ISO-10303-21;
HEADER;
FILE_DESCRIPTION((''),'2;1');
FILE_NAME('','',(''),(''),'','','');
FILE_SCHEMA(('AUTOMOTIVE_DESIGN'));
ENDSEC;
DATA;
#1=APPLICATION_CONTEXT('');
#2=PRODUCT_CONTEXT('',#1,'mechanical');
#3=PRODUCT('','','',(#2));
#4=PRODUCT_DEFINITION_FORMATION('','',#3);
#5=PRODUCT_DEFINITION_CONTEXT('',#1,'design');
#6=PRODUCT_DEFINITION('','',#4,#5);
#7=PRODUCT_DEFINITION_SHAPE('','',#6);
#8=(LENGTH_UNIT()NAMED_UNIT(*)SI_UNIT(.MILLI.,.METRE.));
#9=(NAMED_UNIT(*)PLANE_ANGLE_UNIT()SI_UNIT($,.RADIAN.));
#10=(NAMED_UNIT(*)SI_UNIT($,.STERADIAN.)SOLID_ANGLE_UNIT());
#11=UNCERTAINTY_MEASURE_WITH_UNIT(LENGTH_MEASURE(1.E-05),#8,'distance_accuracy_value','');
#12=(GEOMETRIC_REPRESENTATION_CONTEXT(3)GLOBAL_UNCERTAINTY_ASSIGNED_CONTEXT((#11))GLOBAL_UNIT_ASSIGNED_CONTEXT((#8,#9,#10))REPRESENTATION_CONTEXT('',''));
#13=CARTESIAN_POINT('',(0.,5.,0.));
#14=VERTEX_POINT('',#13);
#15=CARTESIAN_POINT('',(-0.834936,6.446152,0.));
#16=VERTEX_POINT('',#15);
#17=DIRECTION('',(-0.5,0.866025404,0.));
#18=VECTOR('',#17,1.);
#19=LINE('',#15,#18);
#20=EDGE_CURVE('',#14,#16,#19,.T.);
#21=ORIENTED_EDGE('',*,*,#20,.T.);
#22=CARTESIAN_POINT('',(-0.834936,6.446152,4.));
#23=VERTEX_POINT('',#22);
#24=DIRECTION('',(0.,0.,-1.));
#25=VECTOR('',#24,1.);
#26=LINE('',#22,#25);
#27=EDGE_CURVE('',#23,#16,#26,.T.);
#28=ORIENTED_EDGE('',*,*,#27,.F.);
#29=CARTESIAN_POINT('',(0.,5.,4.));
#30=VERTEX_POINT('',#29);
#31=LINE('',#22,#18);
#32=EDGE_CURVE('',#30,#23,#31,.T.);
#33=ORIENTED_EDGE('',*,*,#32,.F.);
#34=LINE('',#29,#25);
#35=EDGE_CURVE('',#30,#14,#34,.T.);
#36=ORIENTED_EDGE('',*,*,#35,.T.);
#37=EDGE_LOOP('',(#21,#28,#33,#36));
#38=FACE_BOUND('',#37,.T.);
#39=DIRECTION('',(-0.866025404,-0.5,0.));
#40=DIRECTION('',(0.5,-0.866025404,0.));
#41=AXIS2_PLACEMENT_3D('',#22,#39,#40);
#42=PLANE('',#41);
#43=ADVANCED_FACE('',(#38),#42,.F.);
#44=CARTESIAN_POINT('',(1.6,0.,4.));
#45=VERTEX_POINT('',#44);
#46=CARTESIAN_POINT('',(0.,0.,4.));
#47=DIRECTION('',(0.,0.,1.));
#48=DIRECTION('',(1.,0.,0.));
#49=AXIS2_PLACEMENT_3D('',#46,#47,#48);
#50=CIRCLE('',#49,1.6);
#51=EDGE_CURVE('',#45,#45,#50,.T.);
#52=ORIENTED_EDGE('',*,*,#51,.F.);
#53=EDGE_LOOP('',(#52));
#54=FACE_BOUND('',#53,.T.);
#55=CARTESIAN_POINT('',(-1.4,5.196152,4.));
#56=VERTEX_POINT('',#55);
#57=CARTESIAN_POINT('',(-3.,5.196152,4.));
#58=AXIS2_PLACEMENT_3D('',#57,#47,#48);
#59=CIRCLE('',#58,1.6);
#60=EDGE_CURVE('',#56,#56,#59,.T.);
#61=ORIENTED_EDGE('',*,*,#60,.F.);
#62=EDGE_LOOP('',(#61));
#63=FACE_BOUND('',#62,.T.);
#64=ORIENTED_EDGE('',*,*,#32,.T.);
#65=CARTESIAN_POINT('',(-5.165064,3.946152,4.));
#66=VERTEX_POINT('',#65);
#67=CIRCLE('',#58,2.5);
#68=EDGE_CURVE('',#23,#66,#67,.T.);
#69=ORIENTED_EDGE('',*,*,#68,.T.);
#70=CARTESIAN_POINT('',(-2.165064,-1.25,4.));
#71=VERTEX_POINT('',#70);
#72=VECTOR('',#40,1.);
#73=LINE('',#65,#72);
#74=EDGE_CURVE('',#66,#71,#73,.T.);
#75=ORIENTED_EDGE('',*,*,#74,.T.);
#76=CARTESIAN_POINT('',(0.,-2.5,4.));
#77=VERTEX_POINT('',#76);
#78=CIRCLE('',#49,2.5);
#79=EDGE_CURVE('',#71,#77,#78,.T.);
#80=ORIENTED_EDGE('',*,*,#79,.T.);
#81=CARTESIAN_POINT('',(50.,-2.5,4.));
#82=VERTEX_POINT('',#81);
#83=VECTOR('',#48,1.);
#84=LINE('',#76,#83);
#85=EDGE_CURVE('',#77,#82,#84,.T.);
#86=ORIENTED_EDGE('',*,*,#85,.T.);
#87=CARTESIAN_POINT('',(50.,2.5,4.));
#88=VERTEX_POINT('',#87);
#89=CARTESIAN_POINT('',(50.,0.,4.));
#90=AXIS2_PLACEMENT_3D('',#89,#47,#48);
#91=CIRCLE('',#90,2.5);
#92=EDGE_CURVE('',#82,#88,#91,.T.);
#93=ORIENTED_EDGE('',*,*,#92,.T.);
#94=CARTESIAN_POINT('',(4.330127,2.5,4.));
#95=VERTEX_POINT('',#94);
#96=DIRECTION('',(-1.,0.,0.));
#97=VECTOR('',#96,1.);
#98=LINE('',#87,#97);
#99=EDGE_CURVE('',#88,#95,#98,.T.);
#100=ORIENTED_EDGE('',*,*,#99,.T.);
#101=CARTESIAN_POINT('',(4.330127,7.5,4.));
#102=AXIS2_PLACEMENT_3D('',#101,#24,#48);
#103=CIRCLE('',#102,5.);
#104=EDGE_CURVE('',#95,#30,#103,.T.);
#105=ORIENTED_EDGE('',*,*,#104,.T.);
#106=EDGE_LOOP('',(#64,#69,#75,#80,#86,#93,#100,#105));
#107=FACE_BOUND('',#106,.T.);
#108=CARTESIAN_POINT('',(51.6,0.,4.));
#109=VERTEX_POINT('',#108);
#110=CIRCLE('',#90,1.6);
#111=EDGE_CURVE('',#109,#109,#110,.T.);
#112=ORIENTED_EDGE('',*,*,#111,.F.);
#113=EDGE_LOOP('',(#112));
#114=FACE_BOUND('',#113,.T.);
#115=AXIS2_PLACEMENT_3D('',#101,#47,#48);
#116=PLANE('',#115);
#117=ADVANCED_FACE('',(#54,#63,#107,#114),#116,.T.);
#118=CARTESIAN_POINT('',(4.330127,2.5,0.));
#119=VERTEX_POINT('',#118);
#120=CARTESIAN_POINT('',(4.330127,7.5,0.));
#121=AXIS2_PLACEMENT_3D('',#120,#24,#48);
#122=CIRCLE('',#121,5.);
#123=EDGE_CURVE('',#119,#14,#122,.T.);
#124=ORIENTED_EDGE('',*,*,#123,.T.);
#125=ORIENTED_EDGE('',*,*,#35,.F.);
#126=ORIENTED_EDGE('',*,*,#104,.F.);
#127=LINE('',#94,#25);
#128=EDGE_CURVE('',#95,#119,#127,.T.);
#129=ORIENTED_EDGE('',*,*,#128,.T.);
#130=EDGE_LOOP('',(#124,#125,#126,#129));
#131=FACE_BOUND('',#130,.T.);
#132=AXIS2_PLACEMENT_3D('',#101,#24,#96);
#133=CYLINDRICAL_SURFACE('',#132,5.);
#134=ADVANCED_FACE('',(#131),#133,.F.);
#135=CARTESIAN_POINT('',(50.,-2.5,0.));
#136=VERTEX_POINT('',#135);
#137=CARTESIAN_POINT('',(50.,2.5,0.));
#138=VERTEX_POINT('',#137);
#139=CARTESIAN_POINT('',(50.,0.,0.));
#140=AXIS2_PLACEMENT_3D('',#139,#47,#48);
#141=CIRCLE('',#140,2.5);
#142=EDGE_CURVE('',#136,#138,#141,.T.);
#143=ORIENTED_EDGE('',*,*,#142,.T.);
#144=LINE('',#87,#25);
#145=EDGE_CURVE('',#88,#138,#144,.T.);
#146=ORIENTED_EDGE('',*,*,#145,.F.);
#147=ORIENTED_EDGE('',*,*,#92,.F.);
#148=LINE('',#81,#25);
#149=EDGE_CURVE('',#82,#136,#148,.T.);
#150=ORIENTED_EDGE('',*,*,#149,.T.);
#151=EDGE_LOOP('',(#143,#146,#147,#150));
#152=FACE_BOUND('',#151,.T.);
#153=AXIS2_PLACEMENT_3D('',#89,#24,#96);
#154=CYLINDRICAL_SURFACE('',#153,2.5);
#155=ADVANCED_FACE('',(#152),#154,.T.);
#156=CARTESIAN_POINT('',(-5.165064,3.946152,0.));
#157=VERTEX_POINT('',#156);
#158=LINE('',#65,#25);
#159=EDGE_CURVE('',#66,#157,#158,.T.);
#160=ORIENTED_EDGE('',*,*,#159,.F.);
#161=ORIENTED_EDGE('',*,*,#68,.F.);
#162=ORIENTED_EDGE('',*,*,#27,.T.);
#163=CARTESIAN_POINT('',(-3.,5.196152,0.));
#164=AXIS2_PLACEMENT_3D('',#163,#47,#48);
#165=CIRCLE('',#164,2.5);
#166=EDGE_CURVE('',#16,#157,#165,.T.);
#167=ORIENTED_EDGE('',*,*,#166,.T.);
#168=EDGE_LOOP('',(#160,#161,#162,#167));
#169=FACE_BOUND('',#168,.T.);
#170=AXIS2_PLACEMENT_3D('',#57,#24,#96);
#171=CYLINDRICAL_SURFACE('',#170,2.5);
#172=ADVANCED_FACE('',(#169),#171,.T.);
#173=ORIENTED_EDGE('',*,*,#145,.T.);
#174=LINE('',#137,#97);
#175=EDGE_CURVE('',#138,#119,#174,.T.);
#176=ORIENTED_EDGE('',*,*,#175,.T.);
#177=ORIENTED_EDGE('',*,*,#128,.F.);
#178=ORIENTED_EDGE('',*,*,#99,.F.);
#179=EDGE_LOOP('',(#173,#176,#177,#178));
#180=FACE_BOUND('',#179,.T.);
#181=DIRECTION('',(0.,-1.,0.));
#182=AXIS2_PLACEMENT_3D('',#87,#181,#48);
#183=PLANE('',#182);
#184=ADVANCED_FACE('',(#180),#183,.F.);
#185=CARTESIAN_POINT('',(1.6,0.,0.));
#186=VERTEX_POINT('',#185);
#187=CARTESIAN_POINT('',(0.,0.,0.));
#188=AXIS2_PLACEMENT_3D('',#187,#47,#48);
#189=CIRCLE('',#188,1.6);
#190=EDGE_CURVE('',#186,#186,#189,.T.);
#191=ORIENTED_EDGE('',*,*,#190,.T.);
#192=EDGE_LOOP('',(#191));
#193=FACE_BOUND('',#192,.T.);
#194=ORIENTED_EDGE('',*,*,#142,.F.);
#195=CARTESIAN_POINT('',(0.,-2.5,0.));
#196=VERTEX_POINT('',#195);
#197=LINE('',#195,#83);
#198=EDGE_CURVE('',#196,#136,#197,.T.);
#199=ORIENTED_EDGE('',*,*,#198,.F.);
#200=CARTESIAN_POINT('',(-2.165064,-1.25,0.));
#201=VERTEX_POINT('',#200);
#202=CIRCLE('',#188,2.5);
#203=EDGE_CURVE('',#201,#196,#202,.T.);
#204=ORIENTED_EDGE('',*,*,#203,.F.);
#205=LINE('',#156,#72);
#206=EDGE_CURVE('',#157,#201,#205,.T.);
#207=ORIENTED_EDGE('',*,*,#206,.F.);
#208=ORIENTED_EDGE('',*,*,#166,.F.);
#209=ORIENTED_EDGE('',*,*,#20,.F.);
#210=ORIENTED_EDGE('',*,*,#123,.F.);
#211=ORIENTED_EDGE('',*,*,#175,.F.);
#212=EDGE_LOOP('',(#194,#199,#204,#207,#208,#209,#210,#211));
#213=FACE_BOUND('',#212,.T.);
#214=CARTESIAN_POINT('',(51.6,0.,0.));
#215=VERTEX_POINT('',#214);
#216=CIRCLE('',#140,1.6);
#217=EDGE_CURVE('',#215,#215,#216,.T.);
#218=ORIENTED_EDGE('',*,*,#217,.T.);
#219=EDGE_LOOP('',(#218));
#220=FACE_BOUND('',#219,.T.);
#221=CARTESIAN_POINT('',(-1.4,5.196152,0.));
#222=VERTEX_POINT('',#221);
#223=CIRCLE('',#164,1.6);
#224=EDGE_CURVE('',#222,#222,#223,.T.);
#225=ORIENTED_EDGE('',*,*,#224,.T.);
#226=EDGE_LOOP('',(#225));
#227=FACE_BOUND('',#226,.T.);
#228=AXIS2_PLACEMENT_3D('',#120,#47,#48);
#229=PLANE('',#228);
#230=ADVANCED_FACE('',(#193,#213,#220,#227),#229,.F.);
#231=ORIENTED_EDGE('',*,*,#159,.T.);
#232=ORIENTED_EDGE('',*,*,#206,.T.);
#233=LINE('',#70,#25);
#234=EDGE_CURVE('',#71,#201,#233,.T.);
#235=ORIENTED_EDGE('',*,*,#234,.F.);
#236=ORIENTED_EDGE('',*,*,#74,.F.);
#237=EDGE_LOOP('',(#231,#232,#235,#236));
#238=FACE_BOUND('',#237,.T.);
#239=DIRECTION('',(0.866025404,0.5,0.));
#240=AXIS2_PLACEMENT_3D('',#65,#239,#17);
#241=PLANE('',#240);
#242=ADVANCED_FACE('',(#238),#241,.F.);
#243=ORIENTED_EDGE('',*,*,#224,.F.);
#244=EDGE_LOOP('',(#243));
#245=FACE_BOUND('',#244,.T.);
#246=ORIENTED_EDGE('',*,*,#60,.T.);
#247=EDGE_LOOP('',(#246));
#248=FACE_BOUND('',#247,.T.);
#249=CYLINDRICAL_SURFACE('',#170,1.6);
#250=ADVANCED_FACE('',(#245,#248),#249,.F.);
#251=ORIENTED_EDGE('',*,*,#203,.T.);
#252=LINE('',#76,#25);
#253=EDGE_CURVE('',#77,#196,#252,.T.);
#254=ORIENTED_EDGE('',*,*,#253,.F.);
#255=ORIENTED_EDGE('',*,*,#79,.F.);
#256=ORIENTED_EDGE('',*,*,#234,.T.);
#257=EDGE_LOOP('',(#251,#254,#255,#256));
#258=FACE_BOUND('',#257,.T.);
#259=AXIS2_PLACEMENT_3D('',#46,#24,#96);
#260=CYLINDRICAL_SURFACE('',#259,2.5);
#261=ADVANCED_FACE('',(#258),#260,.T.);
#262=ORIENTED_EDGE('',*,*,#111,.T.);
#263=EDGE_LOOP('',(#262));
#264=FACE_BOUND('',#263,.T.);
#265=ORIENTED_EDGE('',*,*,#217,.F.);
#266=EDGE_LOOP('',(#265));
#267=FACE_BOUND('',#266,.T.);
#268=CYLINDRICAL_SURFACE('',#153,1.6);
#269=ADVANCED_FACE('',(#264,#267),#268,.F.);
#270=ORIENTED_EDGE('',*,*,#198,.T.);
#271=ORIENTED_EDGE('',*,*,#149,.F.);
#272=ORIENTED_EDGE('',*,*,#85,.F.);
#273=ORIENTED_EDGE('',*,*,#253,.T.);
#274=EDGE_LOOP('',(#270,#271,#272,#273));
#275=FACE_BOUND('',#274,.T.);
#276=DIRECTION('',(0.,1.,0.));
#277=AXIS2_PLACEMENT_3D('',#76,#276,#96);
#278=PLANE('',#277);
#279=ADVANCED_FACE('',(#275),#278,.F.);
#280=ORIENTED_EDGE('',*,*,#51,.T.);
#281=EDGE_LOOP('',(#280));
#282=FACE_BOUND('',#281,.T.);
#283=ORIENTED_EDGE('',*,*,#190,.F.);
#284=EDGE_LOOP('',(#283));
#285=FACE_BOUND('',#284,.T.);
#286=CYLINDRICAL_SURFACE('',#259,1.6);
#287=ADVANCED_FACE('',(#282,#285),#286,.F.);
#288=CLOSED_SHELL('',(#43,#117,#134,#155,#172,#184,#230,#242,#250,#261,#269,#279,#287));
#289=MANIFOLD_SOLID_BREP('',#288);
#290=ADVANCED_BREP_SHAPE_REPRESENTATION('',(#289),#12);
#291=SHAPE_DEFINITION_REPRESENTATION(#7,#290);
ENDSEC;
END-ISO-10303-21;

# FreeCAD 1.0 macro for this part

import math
import FreeCAD as App
import Part
import Sketcher
from FreeCAD import Vector

doc = App.newDocument("Part")
params = doc.addObject("Spreadsheet::Sheet", "Params")
for row, (alias, value) in enumerate([
    ("sketch1_radius", "5 mm"),
    ("sketch1_diameter", "3.2 mm"),
    ("sketch1_radius2", "2.5 mm"),
    ("sketch1_width", "50 mm"),
    ("sketch1_length", "6 mm"),
    ("pad1_length", "4 mm"),
], start=1):
    params.set(f"A{row}", alias)
    params.set(f"B{row}", "=" + value)
    params.setAlias(f"B{row}", alias)

body = doc.addObject("PartDesign::Body", "Body")

# Sketch on XY plane
sketch1 = doc.addObject("Sketcher::SketchObject", "Sketch")
body.addObject(sketch1)
sketch1.AttachmentSupport = (doc.XY_Plane, [""])
sketch1.MapMode = "FlatFace"
sketch1.addGeometry([
    Part.LineSegment(Vector(-5.165064, 3.946152, 0), Vector(-2.165064, -1.25, 0)),  # 0
    Part.ArcOfCircle(Part.Circle(Vector(0, 0, 0), Vector(0, 0, 1), 2.5), math.radians(-150), math.radians(-90)),  # 1
    Part.LineSegment(Vector(0, -2.5, 0), Vector(50, -2.5, 0)),  # 2
    Part.ArcOfCircle(Part.Circle(Vector(50, 0, 0), Vector(0, 0, 1), 2.5), math.radians(-90), math.radians(90)),  # 3
    Part.LineSegment(Vector(50, 2.5, 0), Vector(4.330127, 2.5, 0)),  # 4
    Part.ArcOfCircle(Part.Circle(Vector(4.330127, 7.5, 0), Vector(0, 0, 1), 5), math.radians(-150), math.radians(-90)),  # 5
    Part.LineSegment(Vector(0, 5, 0), Vector(-0.834936, 6.446152, 0)),  # 6
    Part.ArcOfCircle(Part.Circle(Vector(-3, 5.196152, 0), Vector(0, 0, 1), 2.5), math.radians(30), math.radians(210)),  # 7
    Part.Circle(Vector(0, 0, 0), Vector(0, 0, 1), 1.6),  # 8
    Part.Circle(Vector(50, 0, 0), Vector(0, 0, 1), 1.6),  # 9
    Part.Circle(Vector(-3, 5.196152, 0), Vector(0, 0, 1), 1.6),  # 10
], False)
sketch1.addConstraint([
    Sketcher.Constraint("Tangent", 0, 2, 1, 1),
    Sketcher.Constraint("Tangent", 1, 2, 2, 1),
    Sketcher.Constraint("Tangent", 2, 2, 3, 1),
    Sketcher.Constraint("Tangent", 3, 2, 4, 1),
    Sketcher.Constraint("Tangent", 4, 2, 5, 2),
    Sketcher.Constraint("Tangent", 5, 1, 6, 1),
    Sketcher.Constraint("Tangent", 6, 2, 7, 1),
    Sketcher.Constraint("Tangent", 7, 2, 0, 1),
    Sketcher.Constraint("Horizontal", 2),
    Sketcher.Constraint("Horizontal", 4),
    Sketcher.Constraint("Coincident", 1, 3, -1, 1),
    Sketcher.Constraint("Coincident", 8, 3, -1, 1),
    Sketcher.Constraint("Coincident", 9, 3, 3, 3),
    Sketcher.Constraint("Coincident", 10, 3, 7, 3),
    Sketcher.Constraint("Equal", 1, 3),
    Sketcher.Constraint("Equal", 3, 7),
    Sketcher.Constraint("Equal", 8, 9),
    Sketcher.Constraint("Equal", 9, 10),
    Sketcher.Constraint("PointOnObject", 5, 1, -2),
    Sketcher.Constraint("Parallel", 0, 6),
    Sketcher.Constraint("Radius", 5, 5.0),
    Sketcher.Constraint("Diameter", 8, 3.2),
    Sketcher.Constraint("Radius", 1, 2.5),
    Sketcher.Constraint("DistanceX", 2, 1, 2, 2, 50.0),
    Sketcher.Constraint("Distance", 0, 6.0),
])
sketch1.setExpression("Constraints[20]", "Params.sketch1_radius")
sketch1.setExpression("Constraints[21]", "Params.sketch1_diameter")
sketch1.setExpression("Constraints[22]", "Params.sketch1_radius2")
sketch1.setExpression("Constraints[23]", "Params.sketch1_width")
sketch1.setExpression("Constraints[24]", "Params.sketch1_length")
pad1 = doc.addObject("PartDesign::Pad", "Pad")
body.addObject(pad1)
pad1.Profile = sketch1
pad1.setExpression("Length", "Params.pad1_length")

doc.recompute()
